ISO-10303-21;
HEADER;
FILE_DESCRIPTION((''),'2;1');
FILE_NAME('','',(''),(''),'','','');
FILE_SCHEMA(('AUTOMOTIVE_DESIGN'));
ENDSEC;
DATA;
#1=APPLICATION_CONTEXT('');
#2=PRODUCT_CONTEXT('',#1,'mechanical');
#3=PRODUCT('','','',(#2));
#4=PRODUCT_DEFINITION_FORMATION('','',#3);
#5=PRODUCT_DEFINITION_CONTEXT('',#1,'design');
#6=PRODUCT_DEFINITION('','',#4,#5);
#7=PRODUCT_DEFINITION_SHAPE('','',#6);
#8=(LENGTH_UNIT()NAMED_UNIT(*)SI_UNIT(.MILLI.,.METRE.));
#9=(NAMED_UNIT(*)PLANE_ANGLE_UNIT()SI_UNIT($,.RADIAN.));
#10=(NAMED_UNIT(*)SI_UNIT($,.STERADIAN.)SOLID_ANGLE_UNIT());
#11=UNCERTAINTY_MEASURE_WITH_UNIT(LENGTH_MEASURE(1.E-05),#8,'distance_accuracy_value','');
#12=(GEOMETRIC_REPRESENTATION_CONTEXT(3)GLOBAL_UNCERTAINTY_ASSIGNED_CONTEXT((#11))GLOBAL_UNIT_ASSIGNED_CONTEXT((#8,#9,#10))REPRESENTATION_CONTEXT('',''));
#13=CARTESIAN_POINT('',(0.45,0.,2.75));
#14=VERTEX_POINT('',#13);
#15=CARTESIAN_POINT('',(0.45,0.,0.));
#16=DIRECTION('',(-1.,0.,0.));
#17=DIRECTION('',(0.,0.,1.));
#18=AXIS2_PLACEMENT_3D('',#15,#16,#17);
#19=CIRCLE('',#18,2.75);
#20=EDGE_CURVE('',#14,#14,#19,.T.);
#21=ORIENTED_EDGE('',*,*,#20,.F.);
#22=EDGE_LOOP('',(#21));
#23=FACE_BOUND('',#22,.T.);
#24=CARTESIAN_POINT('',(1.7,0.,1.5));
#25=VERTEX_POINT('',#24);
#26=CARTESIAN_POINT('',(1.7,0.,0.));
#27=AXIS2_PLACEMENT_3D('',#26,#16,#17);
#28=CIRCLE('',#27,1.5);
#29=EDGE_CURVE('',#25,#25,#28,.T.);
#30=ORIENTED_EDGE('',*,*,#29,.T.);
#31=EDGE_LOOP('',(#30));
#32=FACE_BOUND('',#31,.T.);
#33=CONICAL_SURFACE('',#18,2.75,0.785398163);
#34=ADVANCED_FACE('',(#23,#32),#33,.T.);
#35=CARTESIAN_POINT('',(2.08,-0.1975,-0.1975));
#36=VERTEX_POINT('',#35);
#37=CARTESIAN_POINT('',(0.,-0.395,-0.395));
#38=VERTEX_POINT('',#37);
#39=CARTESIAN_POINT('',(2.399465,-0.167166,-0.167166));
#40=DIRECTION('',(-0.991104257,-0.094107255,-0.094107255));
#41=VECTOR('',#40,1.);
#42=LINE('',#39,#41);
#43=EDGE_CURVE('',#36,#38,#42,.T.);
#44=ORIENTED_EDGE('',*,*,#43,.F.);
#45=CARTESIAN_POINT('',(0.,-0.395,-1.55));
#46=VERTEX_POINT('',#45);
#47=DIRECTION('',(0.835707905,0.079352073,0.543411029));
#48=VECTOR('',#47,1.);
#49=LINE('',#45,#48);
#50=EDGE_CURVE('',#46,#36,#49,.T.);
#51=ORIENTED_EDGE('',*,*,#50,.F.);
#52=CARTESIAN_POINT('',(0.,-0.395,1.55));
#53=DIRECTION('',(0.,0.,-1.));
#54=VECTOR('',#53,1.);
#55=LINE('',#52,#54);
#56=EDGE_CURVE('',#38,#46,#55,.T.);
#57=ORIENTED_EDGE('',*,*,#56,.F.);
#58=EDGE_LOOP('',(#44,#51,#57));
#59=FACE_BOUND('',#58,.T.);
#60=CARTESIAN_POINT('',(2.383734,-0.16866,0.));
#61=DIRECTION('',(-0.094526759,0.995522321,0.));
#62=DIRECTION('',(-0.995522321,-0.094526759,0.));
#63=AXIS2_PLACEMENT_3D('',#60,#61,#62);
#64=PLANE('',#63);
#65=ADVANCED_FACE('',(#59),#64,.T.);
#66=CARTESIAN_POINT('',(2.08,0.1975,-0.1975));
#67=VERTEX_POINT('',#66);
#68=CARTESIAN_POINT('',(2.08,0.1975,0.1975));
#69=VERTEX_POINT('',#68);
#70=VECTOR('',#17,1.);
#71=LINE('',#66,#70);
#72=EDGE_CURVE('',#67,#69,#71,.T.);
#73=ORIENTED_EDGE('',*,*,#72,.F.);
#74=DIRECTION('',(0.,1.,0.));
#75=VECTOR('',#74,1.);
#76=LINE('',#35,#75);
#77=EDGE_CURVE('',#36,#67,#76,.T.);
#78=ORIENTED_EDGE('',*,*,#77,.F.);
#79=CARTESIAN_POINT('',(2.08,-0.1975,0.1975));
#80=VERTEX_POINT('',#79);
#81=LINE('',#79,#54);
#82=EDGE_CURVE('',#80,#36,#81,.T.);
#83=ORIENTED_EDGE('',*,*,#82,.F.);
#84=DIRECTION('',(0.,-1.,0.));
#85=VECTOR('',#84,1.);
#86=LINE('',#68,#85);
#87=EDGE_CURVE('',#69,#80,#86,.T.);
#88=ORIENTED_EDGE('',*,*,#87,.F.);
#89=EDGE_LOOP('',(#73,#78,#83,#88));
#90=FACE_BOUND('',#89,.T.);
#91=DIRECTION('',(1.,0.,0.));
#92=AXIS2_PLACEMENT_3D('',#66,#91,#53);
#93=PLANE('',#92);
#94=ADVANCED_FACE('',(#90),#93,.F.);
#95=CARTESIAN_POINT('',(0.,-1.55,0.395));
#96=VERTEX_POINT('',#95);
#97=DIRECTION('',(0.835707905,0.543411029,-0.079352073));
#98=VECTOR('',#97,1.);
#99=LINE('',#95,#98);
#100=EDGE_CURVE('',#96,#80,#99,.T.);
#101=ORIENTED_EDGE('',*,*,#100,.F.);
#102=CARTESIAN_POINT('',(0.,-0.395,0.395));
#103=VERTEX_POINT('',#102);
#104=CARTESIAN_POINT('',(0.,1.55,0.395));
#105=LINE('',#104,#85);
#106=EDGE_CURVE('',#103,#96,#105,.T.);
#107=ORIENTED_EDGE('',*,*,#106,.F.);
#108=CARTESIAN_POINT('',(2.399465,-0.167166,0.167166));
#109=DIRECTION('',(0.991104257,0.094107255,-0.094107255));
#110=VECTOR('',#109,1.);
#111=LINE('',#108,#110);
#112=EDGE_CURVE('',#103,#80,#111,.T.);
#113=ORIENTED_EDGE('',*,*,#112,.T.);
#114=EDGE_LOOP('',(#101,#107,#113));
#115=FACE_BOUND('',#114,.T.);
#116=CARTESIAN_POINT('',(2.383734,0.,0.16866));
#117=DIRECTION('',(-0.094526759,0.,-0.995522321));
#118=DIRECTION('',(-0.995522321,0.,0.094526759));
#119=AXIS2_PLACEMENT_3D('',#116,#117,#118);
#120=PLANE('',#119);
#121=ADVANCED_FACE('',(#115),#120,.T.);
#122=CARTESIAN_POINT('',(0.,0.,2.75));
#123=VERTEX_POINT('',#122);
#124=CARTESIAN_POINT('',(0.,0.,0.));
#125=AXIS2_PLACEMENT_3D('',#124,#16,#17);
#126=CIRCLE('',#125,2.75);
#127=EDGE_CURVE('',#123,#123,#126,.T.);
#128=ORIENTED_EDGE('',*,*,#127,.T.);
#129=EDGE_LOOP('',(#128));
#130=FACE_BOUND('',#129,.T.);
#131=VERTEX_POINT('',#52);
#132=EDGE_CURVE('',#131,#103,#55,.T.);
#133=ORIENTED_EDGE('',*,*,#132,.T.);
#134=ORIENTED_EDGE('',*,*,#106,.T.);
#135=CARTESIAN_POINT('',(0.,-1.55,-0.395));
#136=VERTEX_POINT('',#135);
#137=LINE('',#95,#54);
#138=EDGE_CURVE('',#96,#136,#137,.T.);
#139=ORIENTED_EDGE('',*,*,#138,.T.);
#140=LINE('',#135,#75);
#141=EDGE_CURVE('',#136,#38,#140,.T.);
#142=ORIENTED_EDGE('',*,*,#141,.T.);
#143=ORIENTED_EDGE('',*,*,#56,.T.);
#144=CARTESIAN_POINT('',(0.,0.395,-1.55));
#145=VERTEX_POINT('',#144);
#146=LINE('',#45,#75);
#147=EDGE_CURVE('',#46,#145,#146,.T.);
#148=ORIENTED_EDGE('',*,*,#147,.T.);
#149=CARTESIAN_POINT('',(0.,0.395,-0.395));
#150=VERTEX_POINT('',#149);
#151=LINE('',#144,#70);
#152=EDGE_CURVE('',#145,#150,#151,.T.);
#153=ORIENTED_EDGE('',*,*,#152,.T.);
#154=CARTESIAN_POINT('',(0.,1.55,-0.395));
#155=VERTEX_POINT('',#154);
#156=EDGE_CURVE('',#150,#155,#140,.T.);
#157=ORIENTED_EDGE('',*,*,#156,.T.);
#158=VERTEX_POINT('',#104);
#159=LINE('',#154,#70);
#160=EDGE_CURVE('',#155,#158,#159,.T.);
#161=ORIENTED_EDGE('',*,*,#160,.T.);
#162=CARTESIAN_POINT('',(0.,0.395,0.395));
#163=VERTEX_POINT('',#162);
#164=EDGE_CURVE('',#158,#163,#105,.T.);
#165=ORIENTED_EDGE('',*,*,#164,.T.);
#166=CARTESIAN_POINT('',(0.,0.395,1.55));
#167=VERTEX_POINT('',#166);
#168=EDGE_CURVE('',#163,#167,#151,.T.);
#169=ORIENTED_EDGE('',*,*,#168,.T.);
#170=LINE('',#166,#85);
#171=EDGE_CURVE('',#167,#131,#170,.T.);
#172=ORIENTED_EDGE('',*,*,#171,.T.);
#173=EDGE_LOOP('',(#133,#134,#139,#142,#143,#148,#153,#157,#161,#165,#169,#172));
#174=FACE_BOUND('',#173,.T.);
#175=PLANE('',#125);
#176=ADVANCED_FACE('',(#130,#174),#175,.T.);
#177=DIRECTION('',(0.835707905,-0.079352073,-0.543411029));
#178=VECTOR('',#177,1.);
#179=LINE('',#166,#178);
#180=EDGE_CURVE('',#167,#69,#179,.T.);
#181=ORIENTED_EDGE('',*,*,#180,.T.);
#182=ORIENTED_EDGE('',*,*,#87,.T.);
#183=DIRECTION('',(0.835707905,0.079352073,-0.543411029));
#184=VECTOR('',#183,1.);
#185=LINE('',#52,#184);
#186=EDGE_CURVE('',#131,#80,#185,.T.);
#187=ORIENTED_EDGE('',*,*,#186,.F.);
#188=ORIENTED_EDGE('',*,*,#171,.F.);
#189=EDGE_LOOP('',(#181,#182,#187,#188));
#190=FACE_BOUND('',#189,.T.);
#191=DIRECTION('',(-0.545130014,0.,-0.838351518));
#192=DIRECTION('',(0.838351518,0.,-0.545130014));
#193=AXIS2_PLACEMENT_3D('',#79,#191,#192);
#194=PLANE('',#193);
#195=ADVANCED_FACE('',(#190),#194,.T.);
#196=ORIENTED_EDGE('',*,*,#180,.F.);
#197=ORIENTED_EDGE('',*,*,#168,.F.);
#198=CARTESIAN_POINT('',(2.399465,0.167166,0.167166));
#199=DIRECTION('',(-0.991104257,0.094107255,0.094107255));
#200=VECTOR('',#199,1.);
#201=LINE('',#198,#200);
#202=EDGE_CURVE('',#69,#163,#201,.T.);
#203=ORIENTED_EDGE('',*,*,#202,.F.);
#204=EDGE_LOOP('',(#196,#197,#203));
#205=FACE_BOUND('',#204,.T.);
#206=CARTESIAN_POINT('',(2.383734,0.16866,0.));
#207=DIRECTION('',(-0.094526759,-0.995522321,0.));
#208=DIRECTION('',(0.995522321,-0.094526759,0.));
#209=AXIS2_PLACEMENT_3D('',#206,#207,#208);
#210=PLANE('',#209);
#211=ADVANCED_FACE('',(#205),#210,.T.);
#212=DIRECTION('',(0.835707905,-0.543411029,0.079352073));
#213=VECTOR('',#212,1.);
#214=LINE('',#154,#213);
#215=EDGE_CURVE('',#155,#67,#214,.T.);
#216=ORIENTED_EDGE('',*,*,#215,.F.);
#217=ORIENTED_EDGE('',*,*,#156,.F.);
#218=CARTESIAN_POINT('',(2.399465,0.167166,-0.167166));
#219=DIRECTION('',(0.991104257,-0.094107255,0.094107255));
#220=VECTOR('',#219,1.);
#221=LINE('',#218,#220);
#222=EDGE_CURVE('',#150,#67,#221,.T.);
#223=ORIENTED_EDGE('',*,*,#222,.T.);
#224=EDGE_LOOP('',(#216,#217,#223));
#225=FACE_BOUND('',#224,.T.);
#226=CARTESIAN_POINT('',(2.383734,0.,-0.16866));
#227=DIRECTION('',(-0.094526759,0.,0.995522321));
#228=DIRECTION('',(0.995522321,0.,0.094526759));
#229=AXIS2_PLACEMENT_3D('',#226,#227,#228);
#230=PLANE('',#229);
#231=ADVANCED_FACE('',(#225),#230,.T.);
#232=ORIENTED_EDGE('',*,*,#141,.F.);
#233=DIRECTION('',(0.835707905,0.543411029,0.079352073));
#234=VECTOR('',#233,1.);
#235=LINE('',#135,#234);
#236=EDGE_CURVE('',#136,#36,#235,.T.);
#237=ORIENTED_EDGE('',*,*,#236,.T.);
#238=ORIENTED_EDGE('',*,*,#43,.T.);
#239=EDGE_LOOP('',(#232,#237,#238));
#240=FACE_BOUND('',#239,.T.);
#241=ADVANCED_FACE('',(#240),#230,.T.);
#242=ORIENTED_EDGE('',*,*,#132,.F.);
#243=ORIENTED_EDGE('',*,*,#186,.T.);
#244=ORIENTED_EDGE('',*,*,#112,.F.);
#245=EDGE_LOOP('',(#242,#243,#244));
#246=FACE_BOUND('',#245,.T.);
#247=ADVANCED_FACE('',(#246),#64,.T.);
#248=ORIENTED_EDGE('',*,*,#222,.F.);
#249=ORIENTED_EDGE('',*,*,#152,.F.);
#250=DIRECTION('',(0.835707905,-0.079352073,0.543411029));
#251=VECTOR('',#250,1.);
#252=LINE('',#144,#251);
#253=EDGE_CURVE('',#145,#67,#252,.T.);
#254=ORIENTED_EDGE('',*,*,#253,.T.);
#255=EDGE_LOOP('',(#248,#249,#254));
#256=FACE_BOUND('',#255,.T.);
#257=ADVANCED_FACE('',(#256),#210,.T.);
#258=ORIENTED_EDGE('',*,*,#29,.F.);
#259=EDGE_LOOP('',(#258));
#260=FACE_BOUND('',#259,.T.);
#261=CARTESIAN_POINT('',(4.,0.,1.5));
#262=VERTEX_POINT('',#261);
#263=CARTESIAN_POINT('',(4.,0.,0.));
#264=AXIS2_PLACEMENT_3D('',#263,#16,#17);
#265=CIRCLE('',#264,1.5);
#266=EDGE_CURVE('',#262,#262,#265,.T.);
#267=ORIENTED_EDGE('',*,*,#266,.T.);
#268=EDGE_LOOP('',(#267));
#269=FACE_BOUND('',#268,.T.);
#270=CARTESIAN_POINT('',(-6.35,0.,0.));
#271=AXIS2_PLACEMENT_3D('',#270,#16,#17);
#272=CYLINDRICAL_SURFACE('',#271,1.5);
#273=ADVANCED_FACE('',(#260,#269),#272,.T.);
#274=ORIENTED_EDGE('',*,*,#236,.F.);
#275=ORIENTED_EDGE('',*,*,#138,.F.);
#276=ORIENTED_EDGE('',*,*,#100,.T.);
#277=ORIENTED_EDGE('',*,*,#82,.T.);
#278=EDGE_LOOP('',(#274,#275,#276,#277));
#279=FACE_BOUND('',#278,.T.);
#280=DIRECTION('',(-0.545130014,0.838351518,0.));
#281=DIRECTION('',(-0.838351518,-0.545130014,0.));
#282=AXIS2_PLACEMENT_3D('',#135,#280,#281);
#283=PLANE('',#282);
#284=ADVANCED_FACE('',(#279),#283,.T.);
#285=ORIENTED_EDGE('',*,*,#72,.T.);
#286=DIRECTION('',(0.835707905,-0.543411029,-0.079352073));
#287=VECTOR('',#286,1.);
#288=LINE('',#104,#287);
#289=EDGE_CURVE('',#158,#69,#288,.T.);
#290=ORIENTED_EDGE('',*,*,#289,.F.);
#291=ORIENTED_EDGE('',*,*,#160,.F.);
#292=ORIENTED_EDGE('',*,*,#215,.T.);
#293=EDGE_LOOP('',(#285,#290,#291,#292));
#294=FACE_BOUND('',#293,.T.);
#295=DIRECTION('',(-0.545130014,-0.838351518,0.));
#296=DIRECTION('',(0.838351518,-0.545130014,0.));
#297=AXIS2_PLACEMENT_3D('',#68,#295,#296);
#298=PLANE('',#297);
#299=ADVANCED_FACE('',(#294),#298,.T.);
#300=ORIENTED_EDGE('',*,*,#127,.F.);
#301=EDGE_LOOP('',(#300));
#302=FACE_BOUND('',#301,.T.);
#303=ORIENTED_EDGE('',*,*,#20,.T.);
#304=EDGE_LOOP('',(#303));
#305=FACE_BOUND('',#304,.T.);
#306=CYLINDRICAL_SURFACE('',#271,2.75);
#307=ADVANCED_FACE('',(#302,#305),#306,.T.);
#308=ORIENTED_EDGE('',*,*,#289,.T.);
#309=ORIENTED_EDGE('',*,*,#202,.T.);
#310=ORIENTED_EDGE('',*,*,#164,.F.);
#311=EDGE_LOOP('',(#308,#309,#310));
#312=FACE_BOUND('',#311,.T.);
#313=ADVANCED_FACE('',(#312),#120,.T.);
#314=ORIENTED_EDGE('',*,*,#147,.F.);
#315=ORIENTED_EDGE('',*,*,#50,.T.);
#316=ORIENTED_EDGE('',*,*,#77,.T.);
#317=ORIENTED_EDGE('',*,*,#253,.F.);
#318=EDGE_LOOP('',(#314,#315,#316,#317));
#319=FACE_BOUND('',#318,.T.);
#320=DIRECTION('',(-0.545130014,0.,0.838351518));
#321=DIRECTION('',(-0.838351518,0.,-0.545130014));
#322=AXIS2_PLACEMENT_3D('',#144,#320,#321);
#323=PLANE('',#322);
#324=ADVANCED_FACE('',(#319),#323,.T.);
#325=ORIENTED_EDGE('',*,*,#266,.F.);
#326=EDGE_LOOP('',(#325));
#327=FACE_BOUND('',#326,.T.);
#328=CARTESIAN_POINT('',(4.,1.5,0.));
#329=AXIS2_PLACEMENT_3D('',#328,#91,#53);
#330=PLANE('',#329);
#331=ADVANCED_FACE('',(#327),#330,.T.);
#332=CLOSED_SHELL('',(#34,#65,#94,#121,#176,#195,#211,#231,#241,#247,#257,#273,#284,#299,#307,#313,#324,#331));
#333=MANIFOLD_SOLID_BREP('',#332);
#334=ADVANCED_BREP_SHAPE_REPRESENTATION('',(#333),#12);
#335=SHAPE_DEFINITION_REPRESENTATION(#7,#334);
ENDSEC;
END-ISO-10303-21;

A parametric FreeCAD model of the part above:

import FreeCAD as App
import Part
import Sketcher

V = App.Vector
Q = App.Units.Quantity


def add_polygon(sketch, points):
    """Adds a closed chain of lines whose ends are joined by coincident constraints."""
    first, n = sketch.GeometryCount, len(points)
    for a, b in zip(points, points[1:] + points[:1]):
        sketch.addGeometry(Part.LineSegment(App.Vector(*a, 0), App.Vector(*b, 0)), False)
    for i in range(n):
        sketch.addConstraint(Sketcher.Constraint("Coincident", first + i, 2, first + (i + 1) % n, 1))

doc = App.newDocument("Part")
body = doc.addObject("PartDesign::Body", "Body")

sketch1 = body.newObject("Sketcher::SketchObject", "Sketch")
sketch1.AttachmentSupport = (doc.getObject("XY_Plane"), [""])
sketch1.MapMode = "FlatFace"
add_polygon(sketch1, [(0, 2.75), (0, 0), (4, 0), (4, 1.5), (1.7, 1.5), (0.45, 2.75)])
sketch1.addConstraint(Sketcher.Constraint("Vertical", 0))
sketch1.addConstraint(Sketcher.Constraint("Horizontal", 1))
sketch1.addConstraint(Sketcher.Constraint("Vertical", 2))
sketch1.addConstraint(Sketcher.Constraint("Horizontal", 3))
sketch1.addConstraint(Sketcher.Constraint("Horizontal", 5))
sketch1.addConstraint(Sketcher.Constraint("Coincident", 0, 2, -1, 1))
sketch1.addConstraint(Sketcher.Constraint("DistanceX", 1, 1, 1, 2, 4.0))
sketch1.addConstraint(Sketcher.Constraint("Angle", 4, Q("135 deg")))
sketch1.addConstraint(Sketcher.Constraint("DistanceX", 3, 2, 3, 1, 2.3))
sketch1.addConstraint(Sketcher.Constraint("DistanceY", 2, 1, 2, 2, 1.5))
sketch1.addConstraint(Sketcher.Constraint("DistanceX", 5, 2, 5, 1, 0.45))
revolution = body.newObject("PartDesign::Revolution", "Revolution")
revolution.Profile = sketch1
revolution.ReferenceAxis = (sketch1, ["H_Axis"])
revolution.Angle = 360

sketch2 = body.newObject("Sketcher::SketchObject", "Sketch001")
sketch2.AttachmentSupport = (doc.getObject("YZ_Plane"), [""])
sketch2.MapMode = "FlatFace"
add_polygon(sketch2, [(1.6, 0.4), (1.6, -0.4), (-1.6, -0.4), (-1.6, 0.4)])
sketch2.addConstraint(Sketcher.Constraint("Vertical", 0))
sketch2.addConstraint(Sketcher.Constraint("Horizontal", 1))
sketch2.addConstraint(Sketcher.Constraint("Vertical", 2))
sketch2.addConstraint(Sketcher.Constraint("Horizontal", 3))
sketch2.addConstraint(Sketcher.Constraint("Symmetric", 0, 2, 2, 2, -1, 1))
sketch2.addConstraint(Sketcher.Constraint("DistanceX", 1, 2, 1, 1, 3.1))
sketch2.addConstraint(Sketcher.Constraint("DistanceY", 0, 2, 0, 1, 0.79))

sketch3 = body.newObject("Sketcher::SketchObject", "Sketch002")
sketch3.AttachmentSupport = (doc.getObject("YZ_Plane"), [""])
sketch3.MapMode = "FlatFace"
sketch3.AttachmentOffset = App.Placement(V(0, 0, 2.08), App.Rotation())
add_polygon(sketch3, [(0.2, 0.2), (0.2, -0.2), (-0.2, -0.2), (-0.2, 0.2)])
sketch3.addConstraint(Sketcher.Constraint("Vertical", 0))
sketch3.addConstraint(Sketcher.Constraint("Horizontal", 1))
sketch3.addConstraint(Sketcher.Constraint("Vertical", 2))
sketch3.addConstraint(Sketcher.Constraint("Horizontal", 3))
sketch3.addConstraint(Sketcher.Constraint("Symmetric", 0, 2, 2, 2, -1, 1))
sketch3.addConstraint(Sketcher.Constraint("Equal", 3, 0))
sketch3.addConstraint(Sketcher.Constraint("DistanceX", 1, 2, 1, 1, 0.395))

subtractiveloft = body.newObject("PartDesign::SubtractiveLoft", "SubtractiveLoft")
subtractiveloft.Profile = sketch2
subtractiveloft.Sections = [sketch3]
doc.recompute()

polarpattern = body.newObject("PartDesign::PolarPattern", "PolarPattern")
polarpattern.Originals = [subtractiveloft]
polarpattern.Axis = (doc.getObject("X_Axis"), [""])
polarpattern.Angle = 90
polarpattern.Occurrences = 2
body.Tip = polarpattern

doc.recompute()
